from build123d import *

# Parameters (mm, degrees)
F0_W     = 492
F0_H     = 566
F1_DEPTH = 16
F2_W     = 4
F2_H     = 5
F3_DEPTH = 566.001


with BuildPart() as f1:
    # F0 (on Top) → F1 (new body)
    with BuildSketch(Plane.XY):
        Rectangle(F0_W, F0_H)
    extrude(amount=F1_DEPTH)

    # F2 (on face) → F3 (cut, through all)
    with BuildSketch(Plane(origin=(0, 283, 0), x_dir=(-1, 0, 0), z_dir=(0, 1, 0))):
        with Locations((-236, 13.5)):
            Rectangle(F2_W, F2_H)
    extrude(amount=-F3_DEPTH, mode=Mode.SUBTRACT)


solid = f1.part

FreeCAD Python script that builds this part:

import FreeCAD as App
import Part
import Sketcher
from FreeCAD import Vector
Q = App.Units.Quantity

doc = App.newDocument("Part")
body = doc.addObject("PartDesign::Body", "Body")

# Sketch on XY plane
sketch1 = body.newObject("Sketcher::SketchObject", "Sketch")
sketch1.AttachmentSupport = (doc.getObject("XY_Plane"), [""])
sketch1.MapMode = "FlatFace"
sketch1.addGeometry(Part.LineSegment(Vector(-246, 283, 0), Vector(-246, -283, 0)), False)
sketch1.addGeometry(Part.LineSegment(Vector(-246, -283, 0), Vector(246, -283, 0)), False)
sketch1.addGeometry(Part.LineSegment(Vector(246, -283, 0), Vector(246, 283, 0)), False)
sketch1.addGeometry(Part.LineSegment(Vector(246, 283, 0), Vector(-246, 283, 0)), False)
sketch1.addConstraint(Sketcher.Constraint("Coincident", 0, 2, 1, 1))
sketch1.addConstraint(Sketcher.Constraint("Coincident", 1, 2, 2, 1))
sketch1.addConstraint(Sketcher.Constraint("Coincident", 2, 2, 3, 1))
sketch1.addConstraint(Sketcher.Constraint("Coincident", 3, 2, 0, 1))
sketch1.addConstraint(Sketcher.Constraint("Vertical", 0))
sketch1.addConstraint(Sketcher.Constraint("Horizontal", 1))
sketch1.addConstraint(Sketcher.Constraint("Vertical", 2))
sketch1.addConstraint(Sketcher.Constraint("Horizontal", 3))
sketch1.addConstraint(Sketcher.Constraint("Symmetric", 0, 2, 2, 2, -1, 1))
sketch1.addConstraint(Sketcher.Constraint("DistanceX", 1, 1, 1, 2, Q("492 mm")))
sketch1.addConstraint(Sketcher.Constraint("DistanceY", 0, 2, 0, 1, Q("566 mm")))
pad1 = body.newObject("PartDesign::Pad", "Pad")
pad1.Profile = sketch1
pad1.Length = 16

# Sketch on XZ plane
sketch2 = body.newObject("Sketcher::SketchObject", "Sketch001")
sketch2.AttachmentSupport = (doc.getObject("XZ_Plane"), [""])
sketch2.MapMode = "FlatFace"
sketch2.AttachmentOffset = App.Placement(Vector(0, 0, -283), App.Rotation())
sketch2.addGeometry(Part.LineSegment(Vector(238, 16, 0), Vector(238, 11, 0)), False)
sketch2.addGeometry(Part.LineSegment(Vector(238, 11, 0), Vector(234, 11, 0)), False)
sketch2.addGeometry(Part.LineSegment(Vector(234, 11, 0), Vector(234, 16, 0)), False)
sketch2.addGeometry(Part.LineSegment(Vector(234, 16, 0), Vector(238, 16, 0)), False)
sketch2.addConstraint(Sketcher.Constraint("Coincident", 0, 2, 1, 1))
sketch2.addConstraint(Sketcher.Constraint("Coincident", 1, 2, 2, 1))
sketch2.addConstraint(Sketcher.Constraint("Coincident", 2, 2, 3, 1))
sketch2.addConstraint(Sketcher.Constraint("Coincident", 3, 2, 0, 1))
sketch2.addConstraint(Sketcher.Constraint("Vertical", 0))
sketch2.addConstraint(Sketcher.Constraint("Horizontal", 1))
sketch2.addConstraint(Sketcher.Constraint("Vertical", 2))
sketch2.addConstraint(Sketcher.Constraint("Horizontal", 3))
sketch2.addConstraint(Sketcher.Constraint("DistanceX", 1, 2, 1, 1, Q("4 mm")))
sketch2.addConstraint(Sketcher.Constraint("DistanceY", 0, 2, 0, 1, Q("5 mm")))
sketch2.addConstraint(Sketcher.Constraint("DistanceX", -1, 1, 0, 2, Q("238 mm")))
sketch2.addConstraint(Sketcher.Constraint("DistanceY", -1, 1, 0, 2, Q("11 mm")))
pocket1 = body.newObject("PartDesign::Pocket", "Pocket")
pocket1.Profile = sketch2
pocket1.Type = "ThroughAll"
pocket1.Reversed = True

doc.recompute()
